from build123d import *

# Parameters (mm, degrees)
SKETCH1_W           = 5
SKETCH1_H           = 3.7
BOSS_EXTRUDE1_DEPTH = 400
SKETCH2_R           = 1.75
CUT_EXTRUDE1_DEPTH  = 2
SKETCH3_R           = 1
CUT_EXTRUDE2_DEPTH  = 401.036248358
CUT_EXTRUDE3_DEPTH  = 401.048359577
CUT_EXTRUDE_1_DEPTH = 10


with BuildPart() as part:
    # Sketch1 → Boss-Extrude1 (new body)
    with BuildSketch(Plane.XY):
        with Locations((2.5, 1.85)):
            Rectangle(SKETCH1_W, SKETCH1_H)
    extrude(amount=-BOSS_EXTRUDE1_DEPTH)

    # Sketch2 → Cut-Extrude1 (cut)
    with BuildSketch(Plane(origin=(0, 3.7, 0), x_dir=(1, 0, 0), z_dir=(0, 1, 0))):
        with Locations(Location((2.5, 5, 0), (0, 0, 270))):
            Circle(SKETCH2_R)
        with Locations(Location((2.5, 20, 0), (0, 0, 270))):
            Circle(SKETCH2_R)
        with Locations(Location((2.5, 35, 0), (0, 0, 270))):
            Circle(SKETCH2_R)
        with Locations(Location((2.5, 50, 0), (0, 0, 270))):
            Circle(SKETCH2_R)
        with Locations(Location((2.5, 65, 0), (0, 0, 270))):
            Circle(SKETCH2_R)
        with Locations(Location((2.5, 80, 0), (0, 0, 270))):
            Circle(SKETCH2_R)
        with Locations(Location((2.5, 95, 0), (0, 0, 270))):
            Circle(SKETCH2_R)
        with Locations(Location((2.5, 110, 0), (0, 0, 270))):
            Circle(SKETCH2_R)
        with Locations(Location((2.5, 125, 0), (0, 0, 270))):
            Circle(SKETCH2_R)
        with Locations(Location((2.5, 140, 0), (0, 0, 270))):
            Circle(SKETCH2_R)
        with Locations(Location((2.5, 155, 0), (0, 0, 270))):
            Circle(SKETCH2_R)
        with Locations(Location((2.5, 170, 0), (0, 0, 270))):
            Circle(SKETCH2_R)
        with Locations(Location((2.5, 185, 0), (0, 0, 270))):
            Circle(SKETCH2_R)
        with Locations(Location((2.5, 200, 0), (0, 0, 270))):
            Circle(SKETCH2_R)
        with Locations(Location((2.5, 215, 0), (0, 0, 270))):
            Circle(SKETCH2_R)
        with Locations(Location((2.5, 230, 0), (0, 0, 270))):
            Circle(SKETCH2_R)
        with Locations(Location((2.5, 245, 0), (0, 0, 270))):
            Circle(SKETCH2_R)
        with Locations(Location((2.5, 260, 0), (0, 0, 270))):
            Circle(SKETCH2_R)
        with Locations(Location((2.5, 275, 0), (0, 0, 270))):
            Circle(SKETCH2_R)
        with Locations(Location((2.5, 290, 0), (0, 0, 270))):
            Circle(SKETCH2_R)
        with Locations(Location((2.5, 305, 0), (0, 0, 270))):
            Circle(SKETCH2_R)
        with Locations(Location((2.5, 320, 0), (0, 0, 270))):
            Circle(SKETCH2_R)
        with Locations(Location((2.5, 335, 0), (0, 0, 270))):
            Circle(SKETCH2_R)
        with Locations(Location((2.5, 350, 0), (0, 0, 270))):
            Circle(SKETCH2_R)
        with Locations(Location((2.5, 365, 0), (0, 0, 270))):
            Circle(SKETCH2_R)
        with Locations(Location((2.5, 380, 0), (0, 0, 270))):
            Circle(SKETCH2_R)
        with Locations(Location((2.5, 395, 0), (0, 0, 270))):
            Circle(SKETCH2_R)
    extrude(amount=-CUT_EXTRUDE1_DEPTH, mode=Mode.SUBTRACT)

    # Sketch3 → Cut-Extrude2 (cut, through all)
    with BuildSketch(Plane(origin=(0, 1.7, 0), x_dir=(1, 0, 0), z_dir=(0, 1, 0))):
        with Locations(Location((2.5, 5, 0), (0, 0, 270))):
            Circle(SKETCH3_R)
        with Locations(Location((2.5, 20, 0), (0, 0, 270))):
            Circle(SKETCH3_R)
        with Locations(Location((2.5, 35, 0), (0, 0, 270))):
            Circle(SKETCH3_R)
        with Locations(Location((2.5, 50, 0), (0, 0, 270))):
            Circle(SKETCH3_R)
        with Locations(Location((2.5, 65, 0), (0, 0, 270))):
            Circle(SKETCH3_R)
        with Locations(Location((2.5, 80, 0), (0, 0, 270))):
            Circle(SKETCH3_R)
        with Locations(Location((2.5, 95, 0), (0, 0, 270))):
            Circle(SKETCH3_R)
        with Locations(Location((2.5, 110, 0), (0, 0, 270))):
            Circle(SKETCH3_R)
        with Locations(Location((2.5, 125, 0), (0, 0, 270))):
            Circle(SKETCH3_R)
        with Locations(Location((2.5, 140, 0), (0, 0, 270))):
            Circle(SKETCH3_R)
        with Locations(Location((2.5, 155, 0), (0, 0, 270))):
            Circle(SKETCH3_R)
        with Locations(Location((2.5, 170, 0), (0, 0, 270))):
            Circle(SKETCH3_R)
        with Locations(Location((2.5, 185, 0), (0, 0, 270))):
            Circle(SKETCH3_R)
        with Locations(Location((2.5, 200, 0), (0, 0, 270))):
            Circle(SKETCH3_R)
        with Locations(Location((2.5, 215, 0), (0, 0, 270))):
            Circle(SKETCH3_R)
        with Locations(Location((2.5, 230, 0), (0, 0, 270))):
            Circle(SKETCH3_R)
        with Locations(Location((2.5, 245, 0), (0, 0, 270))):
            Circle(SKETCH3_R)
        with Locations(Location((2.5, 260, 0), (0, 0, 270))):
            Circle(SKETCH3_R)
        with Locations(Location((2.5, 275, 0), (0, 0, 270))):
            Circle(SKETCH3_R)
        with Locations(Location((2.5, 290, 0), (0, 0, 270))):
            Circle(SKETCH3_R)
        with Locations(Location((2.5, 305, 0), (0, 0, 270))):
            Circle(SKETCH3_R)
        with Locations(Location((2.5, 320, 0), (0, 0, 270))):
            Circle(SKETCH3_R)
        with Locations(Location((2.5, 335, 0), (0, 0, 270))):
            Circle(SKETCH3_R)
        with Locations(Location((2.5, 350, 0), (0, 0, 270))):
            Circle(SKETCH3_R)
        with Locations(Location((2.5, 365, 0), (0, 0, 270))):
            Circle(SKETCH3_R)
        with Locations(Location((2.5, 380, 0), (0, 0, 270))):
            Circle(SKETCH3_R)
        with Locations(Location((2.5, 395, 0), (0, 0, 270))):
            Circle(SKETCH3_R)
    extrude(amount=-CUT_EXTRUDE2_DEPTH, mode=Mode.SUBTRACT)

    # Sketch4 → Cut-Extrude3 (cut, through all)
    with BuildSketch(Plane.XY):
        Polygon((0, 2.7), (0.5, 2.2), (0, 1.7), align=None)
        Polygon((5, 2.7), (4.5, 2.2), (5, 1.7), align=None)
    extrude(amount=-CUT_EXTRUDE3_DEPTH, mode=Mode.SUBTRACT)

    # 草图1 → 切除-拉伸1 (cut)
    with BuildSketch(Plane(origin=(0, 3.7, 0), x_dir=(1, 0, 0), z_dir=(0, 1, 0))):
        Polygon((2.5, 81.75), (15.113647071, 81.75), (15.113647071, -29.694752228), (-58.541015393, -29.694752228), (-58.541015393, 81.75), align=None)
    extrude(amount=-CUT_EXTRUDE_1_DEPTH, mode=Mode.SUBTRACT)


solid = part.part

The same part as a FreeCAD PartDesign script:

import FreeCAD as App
import Part
import Sketcher
from FreeCAD import Vector


def add_polygon(sketch, points):
    """Adds a closed chain of lines whose ends are joined by coincident constraints."""
    first, n = sketch.GeometryCount, len(points)
    for a, b in zip(points, points[1:] + points[:1]):
        sketch.addGeometry(Part.LineSegment(App.Vector(*a, 0), App.Vector(*b, 0)), False)
    for i in range(n):
        sketch.addConstraint(Sketcher.Constraint("Coincident", first + i, 2, first + (i + 1) % n, 1))

doc = App.newDocument("Part")
body = doc.addObject("PartDesign::Body", "Body")

sketch1 = body.newObject("Sketcher::SketchObject", "Sketch")
sketch1.AttachmentSupport = (doc.getObject("XY_Plane"), [""])
sketch1.MapMode = "FlatFace"
add_polygon(sketch1, [(0, 3.7), (0, 0), (5, 0), (5, 3.7)])
sketch1.addConstraint(Sketcher.Constraint("Vertical", 0))
sketch1.addConstraint(Sketcher.Constraint("Horizontal", 1))
sketch1.addConstraint(Sketcher.Constraint("Vertical", 2))
sketch1.addConstraint(Sketcher.Constraint("Horizontal", 3))
sketch1.addConstraint(Sketcher.Constraint("Coincident", 0, 2, -1, 1))
sketch1.addConstraint(Sketcher.Constraint("DistanceX", 1, 1, 1, 2, 5.0))
sketch1.addConstraint(Sketcher.Constraint("DistanceY", 0, 2, 0, 1, 3.7))
pad1 = body.newObject("PartDesign::Pad", "Pad")
pad1.Profile = sketch1
pad1.Length = 400
pad1.Reversed = True

sketch2 = body.newObject("Sketcher::SketchObject", "Sketch001")
sketch2.AttachmentSupport = (doc.getObject("XZ_Plane"), [""])
sketch2.MapMode = "FlatFace"
sketch2.AttachmentOffset = App.Placement(Vector(0, 0, -3.7), App.Rotation())
sketch2.addGeometry(Part.Circle(Vector(2.5, -5, 0), Vector(0, 0, 1), 1.8), False)
sketch2.addGeometry(Part.Circle(Vector(2.5, -20, 0), Vector(0, 0, 1), 1.8), False)
sketch2.addGeometry(Part.Circle(Vector(2.5, -35, 0), Vector(0, 0, 1), 1.8), False)
sketch2.addGeometry(Part.Circle(Vector(2.5, -50, 0), Vector(0, 0, 1), 1.8), False)
sketch2.addGeometry(Part.Circle(Vector(2.5, -65, 0), Vector(0, 0, 1), 1.8), False)
sketch2.addGeometry(Part.Circle(Vector(2.5, -80, 0), Vector(0, 0, 1), 1.8), False)
sketch2.addGeometry(Part.Circle(Vector(2.5, -95, 0), Vector(0, 0, 1), 1.8), False)
sketch2.addGeometry(Part.Circle(Vector(2.5, -110, 0), Vector(0, 0, 1), 1.8), False)
sketch2.addGeometry(Part.Circle(Vector(2.5, -125, 0), Vector(0, 0, 1), 1.8), False)
sketch2.addGeometry(Part.Circle(Vector(2.5, -140, 0), Vector(0, 0, 1), 1.8), False)
sketch2.addGeometry(Part.Circle(Vector(2.5, -155, 0), Vector(0, 0, 1), 1.8), False)
sketch2.addGeometry(Part.Circle(Vector(2.5, -170, 0), Vector(0, 0, 1), 1.8), False)
sketch2.addGeometry(Part.Circle(Vector(2.5, -185, 0), Vector(0, 0, 1), 1.8), False)
sketch2.addGeometry(Part.Circle(Vector(2.5, -200, 0), Vector(0, 0, 1), 1.8), False)
sketch2.addGeometry(Part.Circle(Vector(2.5, -215, 0), Vector(0, 0, 1), 1.8), False)
sketch2.addGeometry(Part.Circle(Vector(2.5, -230, 0), Vector(0, 0, 1), 1.8), False)
sketch2.addGeometry(Part.Circle(Vector(2.5, -245, 0), Vector(0, 0, 1), 1.8), False)
sketch2.addGeometry(Part.Circle(Vector(2.5, -260, 0), Vector(0, 0, 1), 1.8), False)
sketch2.addGeometry(Part.Circle(Vector(2.5, -275, 0), Vector(0, 0, 1), 1.8), False)
sketch2.addGeometry(Part.Circle(Vector(2.5, -290, 0), Vector(0, 0, 1), 1.8), False)
sketch2.addGeometry(Part.Circle(Vector(2.5, -305, 0), Vector(0, 0, 1), 1.8), False)
sketch2.addGeometry(Part.Circle(Vector(2.5, -320, 0), Vector(0, 0, 1), 1.8), False)
sketch2.addGeometry(Part.Circle(Vector(2.5, -335, 0), Vector(0, 0, 1), 1.8), False)
sketch2.addGeometry(Part.Circle(Vector(2.5, -350, 0), Vector(0, 0, 1), 1.8), False)
sketch2.addGeometry(Part.Circle(Vector(2.5, -365, 0), Vector(0, 0, 1), 1.8), False)
sketch2.addGeometry(Part.Circle(Vector(2.5, -380, 0), Vector(0, 0, 1), 1.8), False)
sketch2.addGeometry(Part.Circle(Vector(2.5, -395, 0), Vector(0, 0, 1), 1.8), False)
sketch2.addConstraint(Sketcher.Constraint("Equal", 0, 1))
sketch2.addConstraint(Sketcher.Constraint("Equal", 1, 2))
sketch2.addConstraint(Sketcher.Constraint("Equal", 2, 3))
sketch2.addConstraint(Sketcher.Constraint("Equal", 3, 4))
sketch2.addConstraint(Sketcher.Constraint("Equal", 4, 5))
sketch2.addConstraint(Sketcher.Constraint("Equal", 5, 6))
sketch2.addConstraint(Sketcher.Constraint("Equal", 6, 7))
sketch2.addConstraint(Sketcher.Constraint("Equal", 7, 8))
sketch2.addConstraint(Sketcher.Constraint("Equal", 8, 9))
sketch2.addConstraint(Sketcher.Constraint("Equal", 9, 10))
sketch2.addConstraint(Sketcher.Constraint("Equal", 10, 11))
sketch2.addConstraint(Sketcher.Constraint("Equal", 11, 12))
sketch2.addConstraint(Sketcher.Constraint("Equal", 12, 13))
sketch2.addConstraint(Sketcher.Constraint("Equal", 13, 14))
sketch2.addConstraint(Sketcher.Constraint("Equal", 14, 15))
sketch2.addConstraint(Sketcher.Constraint("Equal", 15, 16))
sketch2.addConstraint(Sketcher.Constraint("Equal", 16, 17))
sketch2.addConstraint(Sketcher.Constraint("Equal", 17, 18))
sketch2.addConstraint(Sketcher.Constraint("Equal", 18, 19))
sketch2.addConstraint(Sketcher.Constraint("Equal", 19, 20))
sketch2.addConstraint(Sketcher.Constraint("Equal", 20, 21))
sketch2.addConstraint(Sketcher.Constraint("Equal", 21, 22))
sketch2.addConstraint(Sketcher.Constraint("Equal", 22, 23))
sketch2.addConstraint(Sketcher.Constraint("Equal", 23, 24))
sketch2.addConstraint(Sketcher.Constraint("Equal", 24, 25))
sketch2.addConstraint(Sketcher.Constraint("Equal", 25, 26))
sketch2.addConstraint(Sketcher.Constraint("Vertical", 0, 3, 1, 3))
sketch2.addConstraint(Sketcher.Constraint("Vertical", 1, 3, 2, 3))
sketch2.addConstraint(Sketcher.Constraint("Vertical", 2, 3, 3, 3))
sketch2.addConstraint(Sketcher.Constraint("Vertical", 3, 3, 4, 3))
sketch2.addConstraint(Sketcher.Constraint("Vertical", 4, 3, 5, 3))
sketch2.addConstraint(Sketcher.Constraint("Vertical", 5, 3, 6, 3))
sketch2.addConstraint(Sketcher.Constraint("Vertical", 6, 3, 7, 3))
sketch2.addConstraint(Sketcher.Constraint("Vertical", 7, 3, 8, 3))
sketch2.addConstraint(Sketcher.Constraint("Vertical", 8, 3, 9, 3))
sketch2.addConstraint(Sketcher.Constraint("Vertical", 9, 3, 10, 3))
sketch2.addConstraint(Sketcher.Constraint("Vertical", 10, 3, 11, 3))
sketch2.addConstraint(Sketcher.Constraint("Vertical", 11, 3, 12, 3))
sketch2.addConstraint(Sketcher.Constraint("Vertical", 12, 3, 13, 3))
sketch2.addConstraint(Sketcher.Constraint("Vertical", 13, 3, 14, 3))
sketch2.addConstraint(Sketcher.Constraint("Vertical", 14, 3, 15, 3))
sketch2.addConstraint(Sketcher.Constraint("Vertical", 15, 3, 16, 3))
sketch2.addConstraint(Sketcher.Constraint("Vertical", 16, 3, 17, 3))
sketch2.addConstraint(Sketcher.Constraint("Vertical", 17, 3, 18, 3))
sketch2.addConstraint(Sketcher.Constraint("Vertical", 18, 3, 19, 3))
sketch2.addConstraint(Sketcher.Constraint("Vertical", 19, 3, 20, 3))
sketch2.addConstraint(Sketcher.Constraint("Vertical", 20, 3, 21, 3))
sketch2.addConstraint(Sketcher.Constraint("Vertical", 21, 3, 22, 3))
sketch2.addConstraint(Sketcher.Constraint("Vertical", 22, 3, 23, 3))
sketch2.addConstraint(Sketcher.Constraint("Vertical", 23, 3, 24, 3))
sketch2.addConstraint(Sketcher.Constraint("Vertical", 24, 3, 25, 3))
sketch2.addConstraint(Sketcher.Constraint("Vertical", 25, 3, 26, 3))
sketch2.addConstraint(Sketcher.Constraint("Diameter", 0, 3.5))
sketch2.addConstraint(Sketcher.Constraint("DistanceY", 0, 3, -1, 1, 5.0))
sketch2.addConstraint(Sketcher.Constraint("DistanceY", 1, 3, -1, 1, 20.0))
sketch2.addConstraint(Sketcher.Constraint("DistanceY", 2, 3, -1, 1, 35.0))
sketch2.addConstraint(Sketcher.Constraint("DistanceY", 3, 3, -1, 1, 50.0))
sketch2.addConstraint(Sketcher.Constraint("DistanceY", 4, 3, -1, 1, 65.0))
sketch2.addConstraint(Sketcher.Constraint("DistanceY", 5, 3, -1, 1, 80.0))
sketch2.addConstraint(Sketcher.Constraint("DistanceY", 6, 3, -1, 1, 95.0))
sketch2.addConstraint(Sketcher.Constraint("DistanceY", 7, 3, -1, 1, 110.0))
sketch2.addConstraint(Sketcher.Constraint("DistanceY", 8, 3, -1, 1, 125.0))
sketch2.addConstraint(Sketcher.Constraint("DistanceY", 9, 3, -1, 1, 140.0))
sketch2.addConstraint(Sketcher.Constraint("DistanceY", 10, 3, -1, 1, 155.0))
sketch2.addConstraint(Sketcher.Constraint("DistanceY", 11, 3, -1, 1, 170.0))
sketch2.addConstraint(Sketcher.Constraint("DistanceY", 12, 3, -1, 1, 185.0))
sketch2.addConstraint(Sketcher.Constraint("DistanceY", 13, 3, -1, 1, 200.0))
sketch2.addConstraint(Sketcher.Constraint("DistanceY", 14, 3, -1, 1, 215.0))
sketch2.addConstraint(Sketcher.Constraint("DistanceY", 15, 3, -1, 1, 230.0))
sketch2.addConstraint(Sketcher.Constraint("DistanceY", 16, 3, -1, 1, 245.0))
sketch2.addConstraint(Sketcher.Constraint("DistanceY", 17, 3, -1, 1, 260.0))
sketch2.addConstraint(Sketcher.Constraint("DistanceY", 18, 3, -1, 1, 275.0))
sketch2.addConstraint(Sketcher.Constraint("DistanceY", 19, 3, -1, 1, 290.0))
sketch2.addConstraint(Sketcher.Constraint("DistanceY", 20, 3, -1, 1, 305.0))
sketch2.addConstraint(Sketcher.Constraint("DistanceY", 21, 3, -1, 1, 320.0))
sketch2.addConstraint(Sketcher.Constraint("DistanceY", 22, 3, -1, 1, 335.0))
sketch2.addConstraint(Sketcher.Constraint("DistanceY", 23, 3, -1, 1, 350.0))
sketch2.addConstraint(Sketcher.Constraint("DistanceY", 24, 3, -1, 1, 365.0))
sketch2.addConstraint(Sketcher.Constraint("DistanceY", 25, 3, -1, 1, 380.0))
sketch2.addConstraint(Sketcher.Constraint("DistanceY", 26, 3, -1, 1, 395.0))
sketch2.addConstraint(Sketcher.Constraint("DistanceX", -1, 1, 0, 3, 2.5))
pocket1 = body.newObject("PartDesign::Pocket", "Pocket")
pocket1.Profile = sketch2
pocket1.Length = 2
pocket1.Reversed = True

sketch3 = body.newObject("Sketcher::SketchObject", "Sketch002")
sketch3.AttachmentSupport = (doc.getObject("XZ_Plane"), [""])
sketch3.MapMode = "FlatFace"
sketch3.AttachmentOffset = App.Placement(Vector(0, 0, -1.7), App.Rotation())
sketch3.addGeometry(Part.Circle(Vector(2.5, -5, 0), Vector(0, 0, 1), 1), False)
sketch3.addGeometry(Part.Circle(Vector(2.5, -20, 0), Vector(0, 0, 1), 1), False)
sketch3.addGeometry(Part.Circle(Vector(2.5, -35, 0), Vector(0, 0, 1), 1), False)
sketch3.addGeometry(Part.Circle(Vector(2.5, -50, 0), Vector(0, 0, 1), 1), False)
sketch3.addGeometry(Part.Circle(Vector(2.5, -65, 0), Vector(0, 0, 1), 1), False)
sketch3.addGeometry(Part.Circle(Vector(2.5, -80, 0), Vector(0, 0, 1), 1), False)
sketch3.addGeometry(Part.Circle(Vector(2.5, -95, 0), Vector(0, 0, 1), 1), False)
sketch3.addGeometry(Part.Circle(Vector(2.5, -110, 0), Vector(0, 0, 1), 1), False)
sketch3.addGeometry(Part.Circle(Vector(2.5, -125, 0), Vector(0, 0, 1), 1), False)
sketch3.addGeometry(Part.Circle(Vector(2.5, -140, 0), Vector(0, 0, 1), 1), False)
sketch3.addGeometry(Part.Circle(Vector(2.5, -155, 0), Vector(0, 0, 1), 1), False)
sketch3.addGeometry(Part.Circle(Vector(2.5, -170, 0), Vector(0, 0, 1), 1), False)
sketch3.addGeometry(Part.Circle(Vector(2.5, -185, 0), Vector(0, 0, 1), 1), False)
sketch3.addGeometry(Part.Circle(Vector(2.5, -200, 0), Vector(0, 0, 1), 1), False)
sketch3.addGeometry(Part.Circle(Vector(2.5, -215, 0), Vector(0, 0, 1), 1), False)
sketch3.addGeometry(Part.Circle(Vector(2.5, -230, 0), Vector(0, 0, 1), 1), False)
sketch3.addGeometry(Part.Circle(Vector(2.5, -245, 0), Vector(0, 0, 1), 1), False)
sketch3.addGeometry(Part.Circle(Vector(2.5, -260, 0), Vector(0, 0, 1), 1), False)
sketch3.addGeometry(Part.Circle(Vector(2.5, -275, 0), Vector(0, 0, 1), 1), False)
sketch3.addGeometry(Part.Circle(Vector(2.5, -290, 0), Vector(0, 0, 1), 1), False)
sketch3.addGeometry(Part.Circle(Vector(2.5, -305, 0), Vector(0, 0, 1), 1), False)
sketch3.addGeometry(Part.Circle(Vector(2.5, -320, 0), Vector(0, 0, 1), 1), False)
sketch3.addGeometry(Part.Circle(Vector(2.5, -335, 0), Vector(0, 0, 1), 1), False)
sketch3.addGeometry(Part.Circle(Vector(2.5, -350, 0), Vector(0, 0, 1), 1), False)
sketch3.addGeometry(Part.Circle(Vector(2.5, -365, 0), Vector(0, 0, 1), 1), False)
sketch3.addGeometry(Part.Circle(Vector(2.5, -380, 0), Vector(0, 0, 1), 1), False)
sketch3.addGeometry(Part.Circle(Vector(2.5, -395, 0), Vector(0, 0, 1), 1), False)
sketch3.addConstraint(Sketcher.Constraint("Equal", 0, 1))
sketch3.addConstraint(Sketcher.Constraint("Equal", 1, 2))
sketch3.addConstraint(Sketcher.Constraint("Equal", 2, 3))
sketch3.addConstraint(Sketcher.Constraint("Equal", 3, 4))
sketch3.addConstraint(Sketcher.Constraint("Equal", 4, 5))
sketch3.addConstraint(Sketcher.Constraint("Equal", 5, 6))
sketch3.addConstraint(Sketcher.Constraint("Equal", 6, 7))
sketch3.addConstraint(Sketcher.Constraint("Equal", 7, 8))
sketch3.addConstraint(Sketcher.Constraint("Equal", 8, 9))
sketch3.addConstraint(Sketcher.Constraint("Equal", 9, 10))
sketch3.addConstraint(Sketcher.Constraint("Equal", 10, 11))
sketch3.addConstraint(Sketcher.Constraint("Equal", 11, 12))
sketch3.addConstraint(Sketcher.Constraint("Equal", 12, 13))
sketch3.addConstraint(Sketcher.Constraint("Equal", 13, 14))
sketch3.addConstraint(Sketcher.Constraint("Equal", 14, 15))
sketch3.addConstraint(Sketcher.Constraint("Equal", 15, 16))
sketch3.addConstraint(Sketcher.Constraint("Equal", 16, 17))
sketch3.addConstraint(Sketcher.Constraint("Equal", 17, 18))
sketch3.addConstraint(Sketcher.Constraint("Equal", 18, 19))
sketch3.addConstraint(Sketcher.Constraint("Equal", 19, 20))
sketch3.addConstraint(Sketcher.Constraint("Equal", 20, 21))
sketch3.addConstraint(Sketcher.Constraint("Equal", 21, 22))
sketch3.addConstraint(Sketcher.Constraint("Equal", 22, 23))
sketch3.addConstraint(Sketcher.Constraint("Equal", 23, 24))
sketch3.addConstraint(Sketcher.Constraint("Equal", 24, 25))
sketch3.addConstraint(Sketcher.Constraint("Equal", 25, 26))
sketch3.addConstraint(Sketcher.Constraint("Vertical", 0, 3, 1, 3))
sketch3.addConstraint(Sketcher.Constraint("Vertical", 1, 3, 2, 3))
sketch3.addConstraint(Sketcher.Constraint("Vertical", 2, 3, 3, 3))
sketch3.addConstraint(Sketcher.Constraint("Vertical", 3, 3, 4, 3))
sketch3.addConstraint(Sketcher.Constraint("Vertical", 4, 3, 5, 3))
sketch3.addConstraint(Sketcher.Constraint("Vertical", 5, 3, 6, 3))
sketch3.addConstraint(Sketcher.Constraint("Vertical", 6, 3, 7, 3))
sketch3.addConstraint(Sketcher.Constraint("Vertical", 7, 3, 8, 3))
sketch3.addConstraint(Sketcher.Constraint("Vertical", 8, 3, 9, 3))
sketch3.addConstraint(Sketcher.Constraint("Vertical", 9, 3, 10, 3))
sketch3.addConstraint(Sketcher.Constraint("Vertical", 10, 3, 11, 3))
sketch3.addConstraint(Sketcher.Constraint("Vertical", 11, 3, 12, 3))
sketch3.addConstraint(Sketcher.Constraint("Vertical", 12, 3, 13, 3))
sketch3.addConstraint(Sketcher.Constraint("Vertical", 13, 3, 14, 3))
sketch3.addConstraint(Sketcher.Constraint("Vertical", 14, 3, 15, 3))
sketch3.addConstraint(Sketcher.Constraint("Vertical", 15, 3, 16, 3))
sketch3.addConstraint(Sketcher.Constraint("Vertical", 16, 3, 17, 3))
sketch3.addConstraint(Sketcher.Constraint("Vertical", 17, 3, 18, 3))
sketch3.addConstraint(Sketcher.Constraint("Vertical", 18, 3, 19, 3))
sketch3.addConstraint(Sketcher.Constraint("Vertical", 19, 3, 20, 3))
sketch3.addConstraint(Sketcher.Constraint("Vertical", 20, 3, 21, 3))
sketch3.addConstraint(Sketcher.Constraint("Vertical", 21, 3, 22, 3))
sketch3.addConstraint(Sketcher.Constraint("Vertical", 22, 3, 23, 3))
sketch3.addConstraint(Sketcher.Constraint("Vertical", 23, 3, 24, 3))
sketch3.addConstraint(Sketcher.Constraint("Vertical", 24, 3, 25, 3))
sketch3.addConstraint(Sketcher.Constraint("Vertical", 25, 3, 26, 3))
sketch3.addConstraint(Sketcher.Constraint("Diameter", 0, 2.0))
sketch3.addConstraint(Sketcher.Constraint("DistanceY", 0, 3, -1, 1, 5.0))
sketch3.addConstraint(Sketcher.Constraint("DistanceY", 1, 3, -1, 1, 20.0))
sketch3.addConstraint(Sketcher.Constraint("DistanceY", 2, 3, -1, 1, 35.0))
sketch3.addConstraint(Sketcher.Constraint("DistanceY", 3, 3, -1, 1, 50.0))
sketch3.addConstraint(Sketcher.Constraint("DistanceY", 4, 3, -1, 1, 65.0))
sketch3.addConstraint(Sketcher.Constraint("DistanceY", 5, 3, -1, 1, 80.0))
sketch3.addConstraint(Sketcher.Constraint("DistanceY", 6, 3, -1, 1, 95.0))
sketch3.addConstraint(Sketcher.Constraint("DistanceY", 7, 3, -1, 1, 110.0))
sketch3.addConstraint(Sketcher.Constraint("DistanceY", 8, 3, -1, 1, 125.0))
sketch3.addConstraint(Sketcher.Constraint("DistanceY", 9, 3, -1, 1, 140.0))
sketch3.addConstraint(Sketcher.Constraint("DistanceY", 10, 3, -1, 1, 155.0))
sketch3.addConstraint(Sketcher.Constraint("DistanceY", 11, 3, -1, 1, 170.0))
sketch3.addConstraint(Sketcher.Constraint("DistanceY", 12, 3, -1, 1, 185.0))
sketch3.addConstraint(Sketcher.Constraint("DistanceY", 13, 3, -1, 1, 200.0))
sketch3.addConstraint(Sketcher.Constraint("DistanceY", 14, 3, -1, 1, 215.0))
sketch3.addConstraint(Sketcher.Constraint("DistanceY", 15, 3, -1, 1, 230.0))
sketch3.addConstraint(Sketcher.Constraint("DistanceY", 16, 3, -1, 1, 245.0))
sketch3.addConstraint(Sketcher.Constraint("DistanceY", 17, 3, -1, 1, 260.0))
sketch3.addConstraint(Sketcher.Constraint("DistanceY", 18, 3, -1, 1, 275.0))
sketch3.addConstraint(Sketcher.Constraint("DistanceY", 19, 3, -1, 1, 290.0))
sketch3.addConstraint(Sketcher.Constraint("DistanceY", 20, 3, -1, 1, 305.0))
sketch3.addConstraint(Sketcher.Constraint("DistanceY", 21, 3, -1, 1, 320.0))
sketch3.addConstraint(Sketcher.Constraint("DistanceY", 22, 3, -1, 1, 335.0))
sketch3.addConstraint(Sketcher.Constraint("DistanceY", 23, 3, -1, 1, 350.0))
sketch3.addConstraint(Sketcher.Constraint("DistanceY", 24, 3, -1, 1, 365.0))
sketch3.addConstraint(Sketcher.Constraint("DistanceY", 25, 3, -1, 1, 380.0))
sketch3.addConstraint(Sketcher.Constraint("DistanceY", 26, 3, -1, 1, 395.0))
sketch3.addConstraint(Sketcher.Constraint("DistanceX", -1, 1, 0, 3, 2.5))
pocket2 = body.newObject("PartDesign::Pocket", "Pocket001")
pocket2.Profile = sketch3
pocket2.Type = "ThroughAll"
pocket2.Reversed = True

sketch4 = body.newObject("Sketcher::SketchObject", "Sketch003")
sketch4.AttachmentSupport = (doc.getObject("XY_Plane"), [""])
sketch4.MapMode = "FlatFace"
add_polygon(sketch4, [(0.5, 2.2), (0, 2.7), (0, 1.7)])
add_polygon(sketch4, [(5, 2.7), (4.5, 2.2), (5, 1.7)])
sketch4.addConstraint(Sketcher.Constraint("Vertical", 1))
sketch4.addConstraint(Sketcher.Constraint("Vertical", 5))
sketch4.addConstraint(Sketcher.Constraint("PointOnObject", 0, 2, -2))
sketch4.addConstraint(Sketcher.Constraint("Perpendicular", 0, 2))
sketch4.addConstraint(Sketcher.Constraint("Parallel", 2, 3))
sketch4.addConstraint(Sketcher.Constraint("Perpendicular", 3, 4))
sketch4.addConstraint(Sketcher.Constraint("Horizontal", 2, 2, 3, 2))
sketch4.addConstraint(Sketcher.Constraint("Horizontal", 1, 2, 4, 2))
sketch4.addConstraint(Sketcher.Constraint("Horizontal", 0, 2, 5, 2))
sketch4.addConstraint(Sketcher.Constraint("DistanceY", 1, 2, 1, 1, 1.0))
sketch4.addConstraint(Sketcher.Constraint("DistanceX", -1, 1, 4, 2, 5.0))
sketch4.addConstraint(Sketcher.Constraint("DistanceY", -1, 1, 0, 2, 2.7))
pocket3 = body.newObject("PartDesign::Pocket", "Pocket002")
pocket3.Profile = sketch4
pocket3.Type = "ThroughAll"

sketch5 = body.newObject("Sketcher::SketchObject", "Sketch004")
sketch5.AttachmentSupport = (doc.getObject("XZ_Plane"), [""])
sketch5.MapMode = "FlatFace"
sketch5.AttachmentOffset = App.Placement(Vector(0, 0, -3.7), App.Rotation())
add_polygon(sketch5, [(15, -82), (-59, -82), (-59, 30), (15, 30)])
sketch5.addConstraint(Sketcher.Constraint("Horizontal", 0))
sketch5.addConstraint(Sketcher.Constraint("Vertical", 1))
sketch5.addConstraint(Sketcher.Constraint("Horizontal", 2))
sketch5.addConstraint(Sketcher.Constraint("Vertical", 3))
sketch5.addConstraint(Sketcher.Constraint("DistanceY", 0, 2, -1, 1, 81.75))
sketch5.addConstraint(Sketcher.Constraint("DistanceX", 0, 2, 0, 1, 73.654662))
sketch5.addConstraint(Sketcher.Constraint("DistanceY", 1, 1, 1, 2, 111.444752))
sketch5.addConstraint(Sketcher.Constraint("DistanceX", 0, 2, -1, 1, 58.541015))
pocket4 = body.newObject("PartDesign::Pocket", "Pocket003")
pocket4.Profile = sketch5
pocket4.Length = 10
pocket4.Reversed = True

doc.recompute()
